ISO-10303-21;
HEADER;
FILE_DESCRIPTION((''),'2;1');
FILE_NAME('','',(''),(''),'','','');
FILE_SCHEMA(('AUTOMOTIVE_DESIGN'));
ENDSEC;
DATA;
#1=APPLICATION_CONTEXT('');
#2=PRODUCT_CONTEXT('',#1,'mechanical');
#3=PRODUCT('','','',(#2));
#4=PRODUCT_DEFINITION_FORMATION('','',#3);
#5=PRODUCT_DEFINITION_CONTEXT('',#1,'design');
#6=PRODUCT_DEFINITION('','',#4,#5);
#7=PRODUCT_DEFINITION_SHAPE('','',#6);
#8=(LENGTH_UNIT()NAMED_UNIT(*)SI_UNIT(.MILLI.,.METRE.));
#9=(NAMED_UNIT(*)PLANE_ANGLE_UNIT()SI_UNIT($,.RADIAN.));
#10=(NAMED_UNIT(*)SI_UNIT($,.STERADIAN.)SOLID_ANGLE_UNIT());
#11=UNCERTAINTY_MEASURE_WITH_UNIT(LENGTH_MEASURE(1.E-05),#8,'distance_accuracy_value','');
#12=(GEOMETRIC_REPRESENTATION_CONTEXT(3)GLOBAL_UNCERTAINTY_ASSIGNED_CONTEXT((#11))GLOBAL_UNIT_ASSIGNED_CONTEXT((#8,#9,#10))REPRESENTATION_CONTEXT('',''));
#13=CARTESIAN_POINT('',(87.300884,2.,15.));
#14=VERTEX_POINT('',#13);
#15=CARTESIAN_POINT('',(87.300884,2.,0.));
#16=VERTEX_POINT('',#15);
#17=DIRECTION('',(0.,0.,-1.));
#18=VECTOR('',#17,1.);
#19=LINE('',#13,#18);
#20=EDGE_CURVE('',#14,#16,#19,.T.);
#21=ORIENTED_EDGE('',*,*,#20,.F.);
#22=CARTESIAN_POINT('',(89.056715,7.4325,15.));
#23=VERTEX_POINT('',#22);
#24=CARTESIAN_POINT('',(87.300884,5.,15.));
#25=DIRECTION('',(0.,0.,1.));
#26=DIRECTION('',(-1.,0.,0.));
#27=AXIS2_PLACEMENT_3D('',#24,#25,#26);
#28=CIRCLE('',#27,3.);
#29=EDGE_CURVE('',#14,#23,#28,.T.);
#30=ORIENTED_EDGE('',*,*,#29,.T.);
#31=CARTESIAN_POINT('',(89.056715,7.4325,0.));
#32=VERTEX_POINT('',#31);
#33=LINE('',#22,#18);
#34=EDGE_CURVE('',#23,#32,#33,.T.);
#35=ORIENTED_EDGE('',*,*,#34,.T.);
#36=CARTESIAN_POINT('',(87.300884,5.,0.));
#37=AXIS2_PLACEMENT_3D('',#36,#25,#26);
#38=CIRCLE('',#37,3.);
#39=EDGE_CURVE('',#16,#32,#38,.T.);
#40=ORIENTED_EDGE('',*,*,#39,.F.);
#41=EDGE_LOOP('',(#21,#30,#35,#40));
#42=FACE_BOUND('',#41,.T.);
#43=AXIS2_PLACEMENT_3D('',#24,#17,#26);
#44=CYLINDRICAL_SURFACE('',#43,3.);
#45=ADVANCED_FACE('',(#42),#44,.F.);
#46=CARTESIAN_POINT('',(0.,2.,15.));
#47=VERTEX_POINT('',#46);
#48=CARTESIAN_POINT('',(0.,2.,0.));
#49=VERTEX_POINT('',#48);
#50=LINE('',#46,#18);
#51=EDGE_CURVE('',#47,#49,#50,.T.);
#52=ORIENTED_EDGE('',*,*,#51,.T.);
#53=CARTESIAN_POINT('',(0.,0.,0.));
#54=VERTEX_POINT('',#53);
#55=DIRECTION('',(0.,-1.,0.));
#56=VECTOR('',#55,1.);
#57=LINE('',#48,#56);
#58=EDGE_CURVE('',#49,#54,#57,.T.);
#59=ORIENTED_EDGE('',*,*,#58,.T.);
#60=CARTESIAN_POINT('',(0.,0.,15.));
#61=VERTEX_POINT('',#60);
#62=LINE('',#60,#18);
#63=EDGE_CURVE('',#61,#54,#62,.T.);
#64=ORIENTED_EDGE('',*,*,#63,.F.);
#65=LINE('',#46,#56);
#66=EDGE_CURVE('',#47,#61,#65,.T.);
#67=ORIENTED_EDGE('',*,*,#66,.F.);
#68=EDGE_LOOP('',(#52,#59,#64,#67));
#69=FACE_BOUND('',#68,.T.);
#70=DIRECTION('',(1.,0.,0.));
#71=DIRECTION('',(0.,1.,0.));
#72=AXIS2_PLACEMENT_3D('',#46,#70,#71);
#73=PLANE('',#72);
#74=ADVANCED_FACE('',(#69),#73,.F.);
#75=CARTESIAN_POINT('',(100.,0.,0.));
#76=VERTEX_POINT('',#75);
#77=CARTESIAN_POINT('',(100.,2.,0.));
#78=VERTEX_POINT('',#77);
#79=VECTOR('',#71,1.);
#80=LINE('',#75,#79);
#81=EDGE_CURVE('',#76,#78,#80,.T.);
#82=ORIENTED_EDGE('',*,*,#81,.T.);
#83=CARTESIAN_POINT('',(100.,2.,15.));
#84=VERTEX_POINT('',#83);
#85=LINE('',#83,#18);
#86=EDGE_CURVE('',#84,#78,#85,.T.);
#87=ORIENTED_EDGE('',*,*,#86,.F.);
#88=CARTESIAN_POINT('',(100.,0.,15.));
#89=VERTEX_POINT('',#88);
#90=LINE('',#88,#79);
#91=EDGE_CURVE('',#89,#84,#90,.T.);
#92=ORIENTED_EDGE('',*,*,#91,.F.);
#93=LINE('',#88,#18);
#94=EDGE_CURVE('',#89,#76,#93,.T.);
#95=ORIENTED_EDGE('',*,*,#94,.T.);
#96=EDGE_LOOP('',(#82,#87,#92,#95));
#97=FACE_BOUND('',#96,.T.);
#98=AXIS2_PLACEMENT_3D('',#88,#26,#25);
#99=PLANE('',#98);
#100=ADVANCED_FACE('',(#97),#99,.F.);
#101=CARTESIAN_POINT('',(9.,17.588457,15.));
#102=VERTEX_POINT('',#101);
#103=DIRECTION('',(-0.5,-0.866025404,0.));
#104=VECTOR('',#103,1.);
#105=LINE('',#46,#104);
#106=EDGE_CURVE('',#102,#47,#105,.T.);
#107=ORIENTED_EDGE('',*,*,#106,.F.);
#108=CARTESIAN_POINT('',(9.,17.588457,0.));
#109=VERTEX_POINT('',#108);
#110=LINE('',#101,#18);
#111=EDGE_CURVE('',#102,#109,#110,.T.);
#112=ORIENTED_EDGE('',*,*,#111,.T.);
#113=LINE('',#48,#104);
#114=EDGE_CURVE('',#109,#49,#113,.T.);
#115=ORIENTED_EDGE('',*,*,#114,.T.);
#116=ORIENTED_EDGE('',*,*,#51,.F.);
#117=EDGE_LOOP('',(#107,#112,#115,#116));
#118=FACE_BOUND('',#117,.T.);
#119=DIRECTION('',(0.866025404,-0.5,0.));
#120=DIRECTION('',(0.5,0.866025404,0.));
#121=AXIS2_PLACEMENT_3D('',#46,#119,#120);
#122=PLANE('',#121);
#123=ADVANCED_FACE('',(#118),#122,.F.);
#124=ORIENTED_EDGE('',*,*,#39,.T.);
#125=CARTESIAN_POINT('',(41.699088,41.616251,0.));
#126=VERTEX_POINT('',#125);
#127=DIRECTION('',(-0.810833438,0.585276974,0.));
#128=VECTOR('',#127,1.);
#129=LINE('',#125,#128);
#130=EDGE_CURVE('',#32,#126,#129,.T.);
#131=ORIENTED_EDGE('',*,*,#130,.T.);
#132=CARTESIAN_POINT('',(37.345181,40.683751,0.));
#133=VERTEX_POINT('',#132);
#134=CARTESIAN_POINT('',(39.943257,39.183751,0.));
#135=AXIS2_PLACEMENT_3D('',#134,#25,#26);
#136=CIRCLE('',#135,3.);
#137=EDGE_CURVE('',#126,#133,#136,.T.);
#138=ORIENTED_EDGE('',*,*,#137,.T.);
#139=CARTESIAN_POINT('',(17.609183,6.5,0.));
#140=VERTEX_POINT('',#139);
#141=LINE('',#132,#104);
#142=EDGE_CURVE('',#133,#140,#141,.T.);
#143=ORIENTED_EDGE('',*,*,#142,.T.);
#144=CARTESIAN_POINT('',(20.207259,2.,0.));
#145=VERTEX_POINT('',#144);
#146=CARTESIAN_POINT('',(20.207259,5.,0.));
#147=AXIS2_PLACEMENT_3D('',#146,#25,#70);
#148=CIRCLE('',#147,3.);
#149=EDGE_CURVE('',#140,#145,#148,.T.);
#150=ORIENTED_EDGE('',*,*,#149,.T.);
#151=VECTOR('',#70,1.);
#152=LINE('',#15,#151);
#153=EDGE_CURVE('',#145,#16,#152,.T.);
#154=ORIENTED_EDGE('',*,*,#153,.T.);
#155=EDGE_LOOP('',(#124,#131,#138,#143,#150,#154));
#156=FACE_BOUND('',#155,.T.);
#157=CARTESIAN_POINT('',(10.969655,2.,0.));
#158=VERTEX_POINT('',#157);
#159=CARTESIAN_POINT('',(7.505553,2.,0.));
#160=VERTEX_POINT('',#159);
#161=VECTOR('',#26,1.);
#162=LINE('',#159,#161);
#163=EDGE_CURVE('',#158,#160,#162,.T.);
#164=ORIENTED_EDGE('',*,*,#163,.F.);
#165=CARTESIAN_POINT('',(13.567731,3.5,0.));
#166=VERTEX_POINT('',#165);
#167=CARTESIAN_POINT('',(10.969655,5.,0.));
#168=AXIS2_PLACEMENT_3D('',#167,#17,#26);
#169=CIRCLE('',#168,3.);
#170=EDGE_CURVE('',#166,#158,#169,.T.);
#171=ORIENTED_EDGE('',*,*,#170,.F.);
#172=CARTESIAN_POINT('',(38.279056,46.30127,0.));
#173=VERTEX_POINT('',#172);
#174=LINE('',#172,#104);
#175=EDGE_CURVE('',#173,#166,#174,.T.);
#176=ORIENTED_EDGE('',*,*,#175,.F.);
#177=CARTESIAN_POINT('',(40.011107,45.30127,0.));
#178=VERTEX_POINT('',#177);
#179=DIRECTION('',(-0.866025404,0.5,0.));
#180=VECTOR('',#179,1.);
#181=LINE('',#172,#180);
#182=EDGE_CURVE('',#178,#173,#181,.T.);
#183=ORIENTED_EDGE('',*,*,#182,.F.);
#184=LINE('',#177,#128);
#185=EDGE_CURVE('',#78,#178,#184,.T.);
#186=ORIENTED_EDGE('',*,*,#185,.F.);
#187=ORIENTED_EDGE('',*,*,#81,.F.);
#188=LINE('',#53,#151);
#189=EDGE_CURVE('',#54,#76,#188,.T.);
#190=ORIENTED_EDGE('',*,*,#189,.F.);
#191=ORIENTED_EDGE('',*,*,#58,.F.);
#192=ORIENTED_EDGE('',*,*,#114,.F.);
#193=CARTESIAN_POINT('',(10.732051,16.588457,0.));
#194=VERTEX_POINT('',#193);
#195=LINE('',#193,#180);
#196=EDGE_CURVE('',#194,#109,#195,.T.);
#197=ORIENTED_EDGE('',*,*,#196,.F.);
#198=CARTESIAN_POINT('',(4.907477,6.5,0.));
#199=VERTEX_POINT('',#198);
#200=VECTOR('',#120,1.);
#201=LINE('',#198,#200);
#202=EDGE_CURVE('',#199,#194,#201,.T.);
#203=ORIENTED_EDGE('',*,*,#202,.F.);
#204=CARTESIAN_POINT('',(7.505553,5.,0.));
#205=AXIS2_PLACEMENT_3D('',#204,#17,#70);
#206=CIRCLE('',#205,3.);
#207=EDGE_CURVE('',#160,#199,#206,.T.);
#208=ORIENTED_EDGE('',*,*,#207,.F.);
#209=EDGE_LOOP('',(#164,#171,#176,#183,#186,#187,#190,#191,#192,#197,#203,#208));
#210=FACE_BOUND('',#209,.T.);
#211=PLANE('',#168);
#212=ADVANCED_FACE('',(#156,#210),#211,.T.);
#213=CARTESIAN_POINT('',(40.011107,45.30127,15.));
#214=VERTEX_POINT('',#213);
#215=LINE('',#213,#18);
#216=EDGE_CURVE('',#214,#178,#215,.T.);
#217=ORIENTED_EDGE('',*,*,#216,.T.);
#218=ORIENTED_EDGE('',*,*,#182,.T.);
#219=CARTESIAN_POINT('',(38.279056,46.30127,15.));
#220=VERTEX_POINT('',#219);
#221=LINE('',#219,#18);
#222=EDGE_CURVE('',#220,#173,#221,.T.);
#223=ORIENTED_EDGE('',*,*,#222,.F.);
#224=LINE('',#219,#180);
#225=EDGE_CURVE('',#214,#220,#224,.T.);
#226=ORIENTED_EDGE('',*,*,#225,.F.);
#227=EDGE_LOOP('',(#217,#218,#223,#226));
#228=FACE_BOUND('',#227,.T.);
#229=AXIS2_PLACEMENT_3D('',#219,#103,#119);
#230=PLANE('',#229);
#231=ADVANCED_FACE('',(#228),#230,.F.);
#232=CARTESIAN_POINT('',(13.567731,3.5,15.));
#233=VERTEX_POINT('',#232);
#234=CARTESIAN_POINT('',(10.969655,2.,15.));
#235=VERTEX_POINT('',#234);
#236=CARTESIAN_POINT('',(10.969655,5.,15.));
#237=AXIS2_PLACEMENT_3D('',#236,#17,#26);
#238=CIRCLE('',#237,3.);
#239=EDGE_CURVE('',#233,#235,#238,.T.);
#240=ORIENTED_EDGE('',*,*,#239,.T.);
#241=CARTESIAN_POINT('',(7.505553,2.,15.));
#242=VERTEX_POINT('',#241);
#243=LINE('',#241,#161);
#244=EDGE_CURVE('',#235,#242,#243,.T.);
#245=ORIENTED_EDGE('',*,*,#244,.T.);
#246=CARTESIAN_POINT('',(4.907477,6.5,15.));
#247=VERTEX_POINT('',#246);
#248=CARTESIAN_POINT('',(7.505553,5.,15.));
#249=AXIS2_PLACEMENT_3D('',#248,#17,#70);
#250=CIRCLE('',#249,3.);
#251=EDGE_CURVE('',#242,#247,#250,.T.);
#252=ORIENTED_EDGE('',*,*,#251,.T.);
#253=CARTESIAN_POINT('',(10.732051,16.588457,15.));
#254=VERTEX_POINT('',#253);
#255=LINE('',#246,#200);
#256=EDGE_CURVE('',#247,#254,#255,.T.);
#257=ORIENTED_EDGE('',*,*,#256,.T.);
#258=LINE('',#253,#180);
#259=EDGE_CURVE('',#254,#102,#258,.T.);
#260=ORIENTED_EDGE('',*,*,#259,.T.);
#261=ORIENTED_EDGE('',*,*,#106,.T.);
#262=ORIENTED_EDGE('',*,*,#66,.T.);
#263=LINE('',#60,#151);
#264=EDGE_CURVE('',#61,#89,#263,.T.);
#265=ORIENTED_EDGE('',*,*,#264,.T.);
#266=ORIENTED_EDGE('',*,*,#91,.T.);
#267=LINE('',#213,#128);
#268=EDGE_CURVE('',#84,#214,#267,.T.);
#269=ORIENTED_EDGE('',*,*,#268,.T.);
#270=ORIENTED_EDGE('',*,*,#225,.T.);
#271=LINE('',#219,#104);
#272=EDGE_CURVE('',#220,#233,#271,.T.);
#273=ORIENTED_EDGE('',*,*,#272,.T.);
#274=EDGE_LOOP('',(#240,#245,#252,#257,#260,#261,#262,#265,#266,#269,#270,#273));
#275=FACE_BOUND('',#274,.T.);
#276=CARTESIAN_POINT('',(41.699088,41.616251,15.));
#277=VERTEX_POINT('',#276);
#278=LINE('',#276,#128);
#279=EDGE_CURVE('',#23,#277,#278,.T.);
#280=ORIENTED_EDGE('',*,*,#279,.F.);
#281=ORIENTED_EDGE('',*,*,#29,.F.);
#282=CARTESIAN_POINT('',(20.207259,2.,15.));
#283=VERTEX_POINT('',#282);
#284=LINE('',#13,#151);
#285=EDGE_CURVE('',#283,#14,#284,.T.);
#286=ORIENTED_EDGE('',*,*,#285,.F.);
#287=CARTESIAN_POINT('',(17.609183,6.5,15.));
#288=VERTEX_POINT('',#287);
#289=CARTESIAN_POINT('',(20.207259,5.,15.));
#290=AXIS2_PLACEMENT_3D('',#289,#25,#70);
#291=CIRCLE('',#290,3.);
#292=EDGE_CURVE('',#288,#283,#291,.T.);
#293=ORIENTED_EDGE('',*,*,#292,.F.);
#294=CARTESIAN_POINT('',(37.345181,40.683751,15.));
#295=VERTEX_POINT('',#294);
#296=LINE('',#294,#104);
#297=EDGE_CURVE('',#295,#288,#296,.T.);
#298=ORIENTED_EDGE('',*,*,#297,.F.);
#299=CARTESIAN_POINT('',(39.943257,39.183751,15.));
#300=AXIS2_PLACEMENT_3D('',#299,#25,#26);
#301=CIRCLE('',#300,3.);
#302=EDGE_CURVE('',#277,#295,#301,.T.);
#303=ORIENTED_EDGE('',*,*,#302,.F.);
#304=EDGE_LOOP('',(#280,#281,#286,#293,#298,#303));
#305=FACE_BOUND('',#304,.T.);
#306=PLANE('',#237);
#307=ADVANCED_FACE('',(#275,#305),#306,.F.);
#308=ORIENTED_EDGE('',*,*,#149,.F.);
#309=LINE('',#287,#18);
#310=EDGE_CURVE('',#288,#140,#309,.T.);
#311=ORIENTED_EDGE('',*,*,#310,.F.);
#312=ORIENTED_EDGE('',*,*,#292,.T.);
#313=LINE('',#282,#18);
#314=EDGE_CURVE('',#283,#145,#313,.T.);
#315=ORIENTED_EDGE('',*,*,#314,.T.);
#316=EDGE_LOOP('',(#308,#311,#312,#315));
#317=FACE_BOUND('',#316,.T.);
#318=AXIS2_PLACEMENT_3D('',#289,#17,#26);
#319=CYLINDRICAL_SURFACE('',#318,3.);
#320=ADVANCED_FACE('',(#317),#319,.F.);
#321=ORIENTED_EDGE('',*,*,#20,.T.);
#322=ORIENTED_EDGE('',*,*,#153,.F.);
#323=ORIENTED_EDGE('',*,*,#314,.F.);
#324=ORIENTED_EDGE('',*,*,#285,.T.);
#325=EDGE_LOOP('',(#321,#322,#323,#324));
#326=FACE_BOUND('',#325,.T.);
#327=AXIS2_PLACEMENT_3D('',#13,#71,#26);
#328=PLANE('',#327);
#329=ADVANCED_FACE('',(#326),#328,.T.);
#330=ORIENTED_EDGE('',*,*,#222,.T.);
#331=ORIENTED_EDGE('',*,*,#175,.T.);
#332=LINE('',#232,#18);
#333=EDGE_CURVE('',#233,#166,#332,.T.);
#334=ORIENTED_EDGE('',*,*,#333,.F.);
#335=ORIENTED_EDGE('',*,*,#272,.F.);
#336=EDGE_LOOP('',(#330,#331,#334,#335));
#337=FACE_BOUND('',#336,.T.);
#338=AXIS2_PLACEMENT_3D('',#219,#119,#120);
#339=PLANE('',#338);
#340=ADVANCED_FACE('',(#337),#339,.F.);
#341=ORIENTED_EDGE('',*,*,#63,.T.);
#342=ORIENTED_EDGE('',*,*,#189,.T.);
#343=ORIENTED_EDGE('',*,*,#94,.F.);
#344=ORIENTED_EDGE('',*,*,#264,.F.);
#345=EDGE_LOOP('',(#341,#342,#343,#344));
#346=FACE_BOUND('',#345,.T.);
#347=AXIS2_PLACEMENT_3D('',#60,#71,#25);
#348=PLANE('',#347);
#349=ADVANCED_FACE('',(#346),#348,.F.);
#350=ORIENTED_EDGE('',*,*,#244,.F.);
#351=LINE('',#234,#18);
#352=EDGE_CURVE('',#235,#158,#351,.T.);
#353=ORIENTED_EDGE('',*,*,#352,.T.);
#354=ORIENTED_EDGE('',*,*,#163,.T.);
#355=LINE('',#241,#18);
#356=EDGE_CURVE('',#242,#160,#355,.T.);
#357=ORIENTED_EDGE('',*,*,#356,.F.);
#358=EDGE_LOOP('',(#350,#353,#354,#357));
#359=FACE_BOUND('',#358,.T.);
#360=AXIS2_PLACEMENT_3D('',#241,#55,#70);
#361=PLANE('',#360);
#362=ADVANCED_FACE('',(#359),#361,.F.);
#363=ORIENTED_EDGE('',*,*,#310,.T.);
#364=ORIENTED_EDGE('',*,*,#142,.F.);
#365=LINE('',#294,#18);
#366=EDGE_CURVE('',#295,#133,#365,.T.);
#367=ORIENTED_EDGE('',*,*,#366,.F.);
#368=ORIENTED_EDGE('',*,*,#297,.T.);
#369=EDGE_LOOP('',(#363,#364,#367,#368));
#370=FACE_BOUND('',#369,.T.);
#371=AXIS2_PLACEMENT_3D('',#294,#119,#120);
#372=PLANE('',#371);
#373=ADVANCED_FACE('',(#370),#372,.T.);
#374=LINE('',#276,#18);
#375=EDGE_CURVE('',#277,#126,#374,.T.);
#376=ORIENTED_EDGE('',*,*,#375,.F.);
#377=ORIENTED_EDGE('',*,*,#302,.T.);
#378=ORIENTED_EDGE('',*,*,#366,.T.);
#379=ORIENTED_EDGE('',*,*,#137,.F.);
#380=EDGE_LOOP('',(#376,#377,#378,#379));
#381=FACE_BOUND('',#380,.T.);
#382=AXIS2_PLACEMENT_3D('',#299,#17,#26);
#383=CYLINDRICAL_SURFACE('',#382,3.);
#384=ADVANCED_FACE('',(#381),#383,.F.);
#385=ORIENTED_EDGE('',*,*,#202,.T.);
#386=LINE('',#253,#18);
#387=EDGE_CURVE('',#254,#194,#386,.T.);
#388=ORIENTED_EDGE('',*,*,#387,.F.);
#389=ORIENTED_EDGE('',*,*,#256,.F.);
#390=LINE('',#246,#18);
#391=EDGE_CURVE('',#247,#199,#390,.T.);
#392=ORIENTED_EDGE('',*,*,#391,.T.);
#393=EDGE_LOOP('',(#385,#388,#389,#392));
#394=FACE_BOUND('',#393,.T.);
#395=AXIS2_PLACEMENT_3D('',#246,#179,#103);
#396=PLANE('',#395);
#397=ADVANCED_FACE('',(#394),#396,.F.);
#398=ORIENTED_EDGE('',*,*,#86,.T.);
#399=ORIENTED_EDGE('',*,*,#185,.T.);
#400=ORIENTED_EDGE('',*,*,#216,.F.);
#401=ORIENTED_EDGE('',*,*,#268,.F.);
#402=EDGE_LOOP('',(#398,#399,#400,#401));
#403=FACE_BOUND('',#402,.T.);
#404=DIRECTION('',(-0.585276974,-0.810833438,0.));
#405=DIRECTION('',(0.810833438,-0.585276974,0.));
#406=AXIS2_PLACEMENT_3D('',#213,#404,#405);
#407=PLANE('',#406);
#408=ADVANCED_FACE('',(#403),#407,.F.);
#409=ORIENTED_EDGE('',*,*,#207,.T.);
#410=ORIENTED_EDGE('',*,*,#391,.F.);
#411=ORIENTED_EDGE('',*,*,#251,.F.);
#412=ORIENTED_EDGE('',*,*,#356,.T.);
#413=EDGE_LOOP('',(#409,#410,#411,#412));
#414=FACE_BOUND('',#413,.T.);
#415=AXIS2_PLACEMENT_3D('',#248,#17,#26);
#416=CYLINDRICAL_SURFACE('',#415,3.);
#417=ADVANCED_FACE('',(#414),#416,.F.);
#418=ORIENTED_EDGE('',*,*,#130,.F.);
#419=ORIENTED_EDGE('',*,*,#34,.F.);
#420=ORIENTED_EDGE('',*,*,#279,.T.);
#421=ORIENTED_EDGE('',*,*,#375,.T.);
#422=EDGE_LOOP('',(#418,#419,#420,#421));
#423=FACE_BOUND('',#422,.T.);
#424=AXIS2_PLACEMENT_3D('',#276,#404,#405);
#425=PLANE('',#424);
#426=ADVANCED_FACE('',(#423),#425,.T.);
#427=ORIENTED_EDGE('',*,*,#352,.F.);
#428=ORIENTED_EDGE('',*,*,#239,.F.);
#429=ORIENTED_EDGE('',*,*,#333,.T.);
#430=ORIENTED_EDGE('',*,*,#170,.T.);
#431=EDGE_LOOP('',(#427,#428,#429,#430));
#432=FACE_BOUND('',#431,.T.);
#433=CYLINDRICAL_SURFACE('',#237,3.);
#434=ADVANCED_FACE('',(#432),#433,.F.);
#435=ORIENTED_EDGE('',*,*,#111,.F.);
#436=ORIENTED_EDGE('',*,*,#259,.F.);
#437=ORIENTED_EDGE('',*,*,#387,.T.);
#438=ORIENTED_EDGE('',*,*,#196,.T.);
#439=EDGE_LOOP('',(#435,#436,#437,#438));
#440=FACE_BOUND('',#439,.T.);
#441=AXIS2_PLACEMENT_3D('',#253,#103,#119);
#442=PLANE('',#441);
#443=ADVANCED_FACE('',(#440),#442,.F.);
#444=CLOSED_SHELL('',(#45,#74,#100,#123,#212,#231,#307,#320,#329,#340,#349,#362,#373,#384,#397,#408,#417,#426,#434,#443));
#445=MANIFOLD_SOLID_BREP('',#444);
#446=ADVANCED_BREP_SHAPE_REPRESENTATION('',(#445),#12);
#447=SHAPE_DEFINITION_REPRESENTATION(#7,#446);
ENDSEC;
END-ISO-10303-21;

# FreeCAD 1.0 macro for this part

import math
import FreeCAD as App
import Part
import Sketcher
Q = App.Units.Quantity

doc = App.newDocument("Part")
body = doc.addObject("PartDesign::Body", "Body")

sketch1 = body.newObject("Sketcher::SketchObject", "Sketch")
sketch1.AttachmentSupport = (doc.getObject("XY_Plane"), [""])
sketch1.MapMode = "FlatFace"
sketch1.addGeometry(Part.LineSegment(App.Vector(0, 0, 0), App.Vector(100, 0, 0)), False)
sketch1.addGeometry(Part.LineSegment(App.Vector(100, 0, 0), App.Vector(100, 2, 0)), False)
sketch1.addGeometry(Part.LineSegment(App.Vector(100, 2, 0), App.Vector(40, 45.3, 0)), False)
sketch1.addGeometry(Part.LineSegment(App.Vector(40, 45.3, 0), App.Vector(38.3, 46.3, 0)), False)
sketch1.addGeometry(Part.LineSegment(App.Vector(38.3, 46.3, 0), App.Vector(13.6, 3.5, 0)), False)
sketch1.addGeometry(Part.ArcOfCircle(Part.Circle(App.Vector(11, 5, 0), App.Vector(0, 0, 1), 3), math.radians(-90), math.radians(-30)), False)
sketch1.addGeometry(Part.LineSegment(App.Vector(11, 2, 0), App.Vector(7.5, 2, 0)), False)
sketch1.addGeometry(Part.ArcOfCircle(Part.Circle(App.Vector(7.5, 5, 0), App.Vector(0, 0, 1), 3), math.radians(150), math.radians(270)), False)
sketch1.addGeometry(Part.LineSegment(App.Vector(4.9, 6.5, 0), App.Vector(10.7, 16.6, 0)), False)
sketch1.addGeometry(Part.LineSegment(App.Vector(10.7, 16.6, 0), App.Vector(9, 17.6, 0)), False)
sketch1.addGeometry(Part.LineSegment(App.Vector(9, 17.6, 0), App.Vector(0, 2, 0)), False)
sketch1.addGeometry(Part.LineSegment(App.Vector(0, 2, 0), App.Vector(0, 0, 0)), False)
sketch1.addGeometry(Part.ArcOfCircle(Part.Circle(App.Vector(87.3, 5, 0), App.Vector(0, 0, 1), 3), math.radians(-90), math.radians(54)), False)
sketch1.addGeometry(Part.LineSegment(App.Vector(87.3, 2, 0), App.Vector(20.2, 2, 0)), False)
sketch1.addGeometry(Part.ArcOfCircle(Part.Circle(App.Vector(20.2, 5, 0), App.Vector(0, 0, 1), 3), math.radians(150), math.radians(270)), False)
sketch1.addGeometry(Part.LineSegment(App.Vector(17.6, 6.5, 0), App.Vector(37.3, 40.7, 0)), False)
sketch1.addGeometry(Part.ArcOfCircle(Part.Circle(App.Vector(39.9, 39.2, 0), App.Vector(0, 0, 1), 3), math.radians(54), math.radians(150)), False)
sketch1.addGeometry(Part.LineSegment(App.Vector(41.7, 41.6, 0), App.Vector(89.1, 7.4, 0)), False)
sketch1.addConstraint(Sketcher.Constraint("Coincident", 0, 2, 1, 1))
sketch1.addConstraint(Sketcher.Constraint("Coincident", 1, 2, 2, 1))
sketch1.addConstraint(Sketcher.Constraint("Coincident", 2, 2, 3, 1))
sketch1.addConstraint(Sketcher.Constraint("Coincident", 3, 2, 4, 1))
sketch1.addConstraint(Sketcher.Constraint("Tangent", 4, 2, 5, 2))
sketch1.addConstraint(Sketcher.Constraint("Tangent", 5, 1, 6, 1))
sketch1.addConstraint(Sketcher.Constraint("Tangent", 6, 2, 7, 2))
sketch1.addConstraint(Sketcher.Constraint("Tangent", 7, 1, 8, 1))
sketch1.addConstraint(Sketcher.Constraint("Coincident", 8, 2, 9, 1))
sketch1.addConstraint(Sketcher.Constraint("Coincident", 9, 2, 10, 1))
sketch1.addConstraint(Sketcher.Constraint("Coincident", 10, 2, 11, 1))
sketch1.addConstraint(Sketcher.Constraint("Coincident", 11, 2, 0, 1))
sketch1.addConstraint(Sketcher.Constraint("Tangent", 12, 1, 13, 1))
sketch1.addConstraint(Sketcher.Constraint("Tangent", 13, 2, 14, 2))
sketch1.addConstraint(Sketcher.Constraint("Tangent", 14, 1, 15, 1))
sketch1.addConstraint(Sketcher.Constraint("Tangent", 15, 2, 16, 2))
sketch1.addConstraint(Sketcher.Constraint("Tangent", 16, 1, 17, 1))
sketch1.addConstraint(Sketcher.Constraint("Tangent", 17, 2, 12, 2))
sketch1.addConstraint(Sketcher.Constraint("Horizontal", 0))
sketch1.addConstraint(Sketcher.Constraint("Vertical", 1))
sketch1.addConstraint(Sketcher.Constraint("Horizontal", 6))
sketch1.addConstraint(Sketcher.Constraint("Vertical", 11))
sketch1.addConstraint(Sketcher.Constraint("Horizontal", 13))
sketch1.addConstraint(Sketcher.Constraint("Coincident", 11, 2, -1, 1))
sketch1.addConstraint(Sketcher.Constraint("Equal", 5, 7))
sketch1.addConstraint(Sketcher.Constraint("Equal", 7, 12))
sketch1.addConstraint(Sketcher.Constraint("Equal", 12, 14))
sketch1.addConstraint(Sketcher.Constraint("Equal", 14, 16))
sketch1.addConstraint(Sketcher.Constraint("Perpendicular", 3, 4))
sketch1.addConstraint(Sketcher.Constraint("Parallel", 4, 8))
sketch1.addConstraint(Sketcher.Constraint("Perpendicular", 8, 9))
sketch1.addConstraint(Sketcher.Constraint("Perpendicular", 9, 10))
sketch1.addConstraint(Sketcher.Constraint("Parallel", 10, 15))
sketch1.addConstraint(Sketcher.Constraint("Parallel", 2, 17))
sketch1.addConstraint(Sketcher.Constraint("Horizontal", 7, 3, 12, 3))
sketch1.addConstraint(Sketcher.Constraint("Horizontal", 1, 2, 5, 1))
sketch1.addConstraint(Sketcher.Constraint("Horizontal", 6, 2, 10, 2))
sketch1.addConstraint(Sketcher.Constraint("Equal", 3, 9))
sketch1.addConstraint(Sketcher.Constraint("Radius", 5, Q("3 mm")))
sketch1.addConstraint(Sketcher.Constraint("DistanceX", 0, 1, 0, 2, Q("100 mm")))
sketch1.addConstraint(Sketcher.Constraint("DistanceY", 1, 1, 1, 2, Q("2 mm")))
sketch1.addConstraint(Sketcher.Constraint("Angle", 3, Q("150 deg")))
sketch1.addConstraint(Sketcher.Constraint("Distance", 3, Q("2 mm")))
sketch1.addConstraint(Sketcher.Constraint("Distance", 10, Q("18 mm")))
sketch1.addConstraint(Sketcher.Constraint("DistanceX", 6, 2, 6, 1, Q("3.464102 mm")))
sketch1.addConstraint(Sketcher.Constraint("DistanceY", -1, 1, 17, 2, Q("7.4325 mm")))
sketch1.addConstraint(Sketcher.Constraint("DistanceX", 3, 2, 16, 3, Q("1.664201 mm")))
sketch1.addConstraint(Sketcher.Constraint("Distance", 17, Q("58.406109 mm")))
pad1 = body.newObject("PartDesign::Pad", "Pad")
pad1.Profile = sketch1
pad1.Length = 15

doc.recompute()
